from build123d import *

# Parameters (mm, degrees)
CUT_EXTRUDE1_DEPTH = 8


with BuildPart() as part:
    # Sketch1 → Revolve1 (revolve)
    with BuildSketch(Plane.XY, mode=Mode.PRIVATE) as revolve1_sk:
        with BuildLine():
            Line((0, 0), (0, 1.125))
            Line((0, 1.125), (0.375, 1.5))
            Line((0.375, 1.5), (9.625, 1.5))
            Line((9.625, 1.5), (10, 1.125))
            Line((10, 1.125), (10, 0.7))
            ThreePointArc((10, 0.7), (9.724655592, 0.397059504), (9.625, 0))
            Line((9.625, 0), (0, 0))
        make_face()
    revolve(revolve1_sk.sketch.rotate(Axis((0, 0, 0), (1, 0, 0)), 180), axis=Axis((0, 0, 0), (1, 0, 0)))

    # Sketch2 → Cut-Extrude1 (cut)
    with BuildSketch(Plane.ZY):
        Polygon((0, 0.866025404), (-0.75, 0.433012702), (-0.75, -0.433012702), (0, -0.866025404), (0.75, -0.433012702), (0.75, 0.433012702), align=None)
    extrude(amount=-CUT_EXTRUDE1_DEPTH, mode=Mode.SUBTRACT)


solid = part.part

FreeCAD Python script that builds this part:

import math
import FreeCAD as App
import Part
import Sketcher
Q = App.Units.Quantity

doc = App.newDocument("Part")
body = doc.addObject("PartDesign::Body", "Body")

# Sketch on XY plane
sketch1 = doc.addObject("Sketcher::SketchObject", "Sketch")
body.addObject(sketch1)
sketch1.AttachmentSupport = (doc.XY_Plane, [""])
sketch1.MapMode = "FlatFace"
sketch1.addGeometry(Part.LineSegment(App.Vector(0, 1.12, 0), App.Vector(0, 0, 0)), False)
sketch1.addGeometry(Part.LineSegment(App.Vector(0, 0, 0), App.Vector(9.62, 0, 0)), False)
sketch1.addGeometry(Part.ArcOfCircle(Part.Circle(App.Vector(10.47, 0, 0), App.Vector(0, 0, 1), 0.84), math.radians(124), math.radians(180)), False)
sketch1.addGeometry(Part.LineSegment(App.Vector(10, 0.7, 0), App.Vector(10, 1.12, 0)), False)
sketch1.addGeometry(Part.LineSegment(App.Vector(10, 1.12, 0), App.Vector(9.62, 1.5, 0)), False)
sketch1.addGeometry(Part.LineSegment(App.Vector(9.62, 1.5, 0), App.Vector(0.38, 1.5, 0)), False)
sketch1.addGeometry(Part.LineSegment(App.Vector(0.38, 1.5, 0), App.Vector(0, 1.12, 0)), False)
sketch1.addConstraint(Sketcher.Constraint("Coincident", 0, 2, 1, 1))
sketch1.addConstraint(Sketcher.Constraint("Coincident", 1, 2, 2, 2))
sketch1.addConstraint(Sketcher.Constraint("Coincident", 2, 1, 3, 1))
sketch1.addConstraint(Sketcher.Constraint("Coincident", 3, 2, 4, 1))
sketch1.addConstraint(Sketcher.Constraint("Coincident", 4, 2, 5, 1))
sketch1.addConstraint(Sketcher.Constraint("Coincident", 5, 2, 6, 1))
sketch1.addConstraint(Sketcher.Constraint("Coincident", 6, 2, 0, 1))
sketch1.addConstraint(Sketcher.Constraint("Vertical", 0))
sketch1.addConstraint(Sketcher.Constraint("Horizontal", 1))
sketch1.addConstraint(Sketcher.Constraint("Vertical", 3))
sketch1.addConstraint(Sketcher.Constraint("Horizontal", 5))
sketch1.addConstraint(Sketcher.Constraint("Coincident", 0, 2, -1, 1))
sketch1.addConstraint(Sketcher.Constraint("PointOnObject", 2, 3, -1))
sketch1.addConstraint(Sketcher.Constraint("Perpendicular", 4, 6))
sketch1.addConstraint(Sketcher.Constraint("Horizontal", 3, 2, 6, 2))
sketch1.addConstraint(Sketcher.Constraint("Vertical", 1, 2, 4, 2))
sketch1.addConstraint(Sketcher.Constraint("Equal", 4, 6))
sketch1.addConstraint(Sketcher.Constraint("DistanceX", -1, 1, 2, 1, Q("10 mm")))
sketch1.addConstraint(Sketcher.Constraint("DistanceX", 5, 2, 5, 1, Q("9.25 mm")))
sketch1.addConstraint(Sketcher.Constraint("DistanceY", -1, 1, 2, 1, Q("0.7 mm")))
sketch1.addConstraint(Sketcher.Constraint("DistanceY", -1, 1, 4, 2, Q("1.5 mm")))
revolution = doc.addObject("PartDesign::Revolution", "Revolution")
body.addObject(revolution)
revolution.Profile = sketch1
revolution.ReferenceAxis = (sketch1, ["H_Axis"])
revolution.Angle = 360

# Sketch on YZ plane
sketch2 = doc.addObject("Sketcher::SketchObject", "Sketch001")
body.addObject(sketch2)
sketch2.AttachmentSupport = (doc.YZ_Plane, [""])
sketch2.MapMode = "FlatFace"
sketch2.addGeometry(Part.LineSegment(App.Vector(0.9, 0, 0), App.Vector(0.4, -0.8, 0)), False)
sketch2.addGeometry(Part.LineSegment(App.Vector(0.4, -0.8, 0), App.Vector(-0.4, -0.8, 0)), False)
sketch2.addGeometry(Part.LineSegment(App.Vector(-0.4, -0.8, 0), App.Vector(-0.9, 0, 0)), False)
sketch2.addGeometry(Part.LineSegment(App.Vector(-0.9, 0, 0), App.Vector(-0.4, 0.8, 0)), False)
sketch2.addGeometry(Part.LineSegment(App.Vector(-0.4, 0.8, 0), App.Vector(0.4, 0.8, 0)), False)
sketch2.addGeometry(Part.LineSegment(App.Vector(0.4, 0.8, 0), App.Vector(0.9, 0, 0)), False)
sketch2.addConstraint(Sketcher.Constraint("Coincident", 0, 2, 1, 1))
sketch2.addConstraint(Sketcher.Constraint("Coincident", 1, 2, 2, 1))
sketch2.addConstraint(Sketcher.Constraint("Coincident", 2, 2, 3, 1))
sketch2.addConstraint(Sketcher.Constraint("Coincident", 3, 2, 4, 1))
sketch2.addConstraint(Sketcher.Constraint("Coincident", 4, 2, 5, 1))
sketch2.addConstraint(Sketcher.Constraint("Coincident", 5, 2, 0, 1))
sketch2.addConstraint(Sketcher.Constraint("Horizontal", 1))
sketch2.addConstraint(Sketcher.Constraint("Horizontal", 4))
sketch2.addConstraint(Sketcher.Constraint("Symmetric", 0, 2, 3, 2, -1, 1))
sketch2.addConstraint(Sketcher.Constraint("Symmetric", 2, 2, 5, 2, -1, 1))
sketch2.addConstraint(Sketcher.Constraint("PointOnObject", 2, 2, -1))
sketch2.addConstraint(Sketcher.Constraint("Parallel", 2, 5))
sketch2.addConstraint(Sketcher.Constraint("Vertical", 1, 2, 3, 2))
sketch2.addConstraint(Sketcher.Constraint("Angle", 0, Q("-120 deg")))
sketch2.addConstraint(Sketcher.Constraint("DistanceY", 1, 2, 3, 2, Q("1.5 mm")))
sketch2.addConstraint(Sketcher.Constraint("DistanceX", 1, 2, 1, 1, Q("0.866025 mm")))
pocket1 = doc.addObject("PartDesign::Pocket", "Pocket")
body.addObject(pocket1)
pocket1.Profile = sketch2
pocket1.Length = 8
pocket1.Reversed = True

doc.recompute()
